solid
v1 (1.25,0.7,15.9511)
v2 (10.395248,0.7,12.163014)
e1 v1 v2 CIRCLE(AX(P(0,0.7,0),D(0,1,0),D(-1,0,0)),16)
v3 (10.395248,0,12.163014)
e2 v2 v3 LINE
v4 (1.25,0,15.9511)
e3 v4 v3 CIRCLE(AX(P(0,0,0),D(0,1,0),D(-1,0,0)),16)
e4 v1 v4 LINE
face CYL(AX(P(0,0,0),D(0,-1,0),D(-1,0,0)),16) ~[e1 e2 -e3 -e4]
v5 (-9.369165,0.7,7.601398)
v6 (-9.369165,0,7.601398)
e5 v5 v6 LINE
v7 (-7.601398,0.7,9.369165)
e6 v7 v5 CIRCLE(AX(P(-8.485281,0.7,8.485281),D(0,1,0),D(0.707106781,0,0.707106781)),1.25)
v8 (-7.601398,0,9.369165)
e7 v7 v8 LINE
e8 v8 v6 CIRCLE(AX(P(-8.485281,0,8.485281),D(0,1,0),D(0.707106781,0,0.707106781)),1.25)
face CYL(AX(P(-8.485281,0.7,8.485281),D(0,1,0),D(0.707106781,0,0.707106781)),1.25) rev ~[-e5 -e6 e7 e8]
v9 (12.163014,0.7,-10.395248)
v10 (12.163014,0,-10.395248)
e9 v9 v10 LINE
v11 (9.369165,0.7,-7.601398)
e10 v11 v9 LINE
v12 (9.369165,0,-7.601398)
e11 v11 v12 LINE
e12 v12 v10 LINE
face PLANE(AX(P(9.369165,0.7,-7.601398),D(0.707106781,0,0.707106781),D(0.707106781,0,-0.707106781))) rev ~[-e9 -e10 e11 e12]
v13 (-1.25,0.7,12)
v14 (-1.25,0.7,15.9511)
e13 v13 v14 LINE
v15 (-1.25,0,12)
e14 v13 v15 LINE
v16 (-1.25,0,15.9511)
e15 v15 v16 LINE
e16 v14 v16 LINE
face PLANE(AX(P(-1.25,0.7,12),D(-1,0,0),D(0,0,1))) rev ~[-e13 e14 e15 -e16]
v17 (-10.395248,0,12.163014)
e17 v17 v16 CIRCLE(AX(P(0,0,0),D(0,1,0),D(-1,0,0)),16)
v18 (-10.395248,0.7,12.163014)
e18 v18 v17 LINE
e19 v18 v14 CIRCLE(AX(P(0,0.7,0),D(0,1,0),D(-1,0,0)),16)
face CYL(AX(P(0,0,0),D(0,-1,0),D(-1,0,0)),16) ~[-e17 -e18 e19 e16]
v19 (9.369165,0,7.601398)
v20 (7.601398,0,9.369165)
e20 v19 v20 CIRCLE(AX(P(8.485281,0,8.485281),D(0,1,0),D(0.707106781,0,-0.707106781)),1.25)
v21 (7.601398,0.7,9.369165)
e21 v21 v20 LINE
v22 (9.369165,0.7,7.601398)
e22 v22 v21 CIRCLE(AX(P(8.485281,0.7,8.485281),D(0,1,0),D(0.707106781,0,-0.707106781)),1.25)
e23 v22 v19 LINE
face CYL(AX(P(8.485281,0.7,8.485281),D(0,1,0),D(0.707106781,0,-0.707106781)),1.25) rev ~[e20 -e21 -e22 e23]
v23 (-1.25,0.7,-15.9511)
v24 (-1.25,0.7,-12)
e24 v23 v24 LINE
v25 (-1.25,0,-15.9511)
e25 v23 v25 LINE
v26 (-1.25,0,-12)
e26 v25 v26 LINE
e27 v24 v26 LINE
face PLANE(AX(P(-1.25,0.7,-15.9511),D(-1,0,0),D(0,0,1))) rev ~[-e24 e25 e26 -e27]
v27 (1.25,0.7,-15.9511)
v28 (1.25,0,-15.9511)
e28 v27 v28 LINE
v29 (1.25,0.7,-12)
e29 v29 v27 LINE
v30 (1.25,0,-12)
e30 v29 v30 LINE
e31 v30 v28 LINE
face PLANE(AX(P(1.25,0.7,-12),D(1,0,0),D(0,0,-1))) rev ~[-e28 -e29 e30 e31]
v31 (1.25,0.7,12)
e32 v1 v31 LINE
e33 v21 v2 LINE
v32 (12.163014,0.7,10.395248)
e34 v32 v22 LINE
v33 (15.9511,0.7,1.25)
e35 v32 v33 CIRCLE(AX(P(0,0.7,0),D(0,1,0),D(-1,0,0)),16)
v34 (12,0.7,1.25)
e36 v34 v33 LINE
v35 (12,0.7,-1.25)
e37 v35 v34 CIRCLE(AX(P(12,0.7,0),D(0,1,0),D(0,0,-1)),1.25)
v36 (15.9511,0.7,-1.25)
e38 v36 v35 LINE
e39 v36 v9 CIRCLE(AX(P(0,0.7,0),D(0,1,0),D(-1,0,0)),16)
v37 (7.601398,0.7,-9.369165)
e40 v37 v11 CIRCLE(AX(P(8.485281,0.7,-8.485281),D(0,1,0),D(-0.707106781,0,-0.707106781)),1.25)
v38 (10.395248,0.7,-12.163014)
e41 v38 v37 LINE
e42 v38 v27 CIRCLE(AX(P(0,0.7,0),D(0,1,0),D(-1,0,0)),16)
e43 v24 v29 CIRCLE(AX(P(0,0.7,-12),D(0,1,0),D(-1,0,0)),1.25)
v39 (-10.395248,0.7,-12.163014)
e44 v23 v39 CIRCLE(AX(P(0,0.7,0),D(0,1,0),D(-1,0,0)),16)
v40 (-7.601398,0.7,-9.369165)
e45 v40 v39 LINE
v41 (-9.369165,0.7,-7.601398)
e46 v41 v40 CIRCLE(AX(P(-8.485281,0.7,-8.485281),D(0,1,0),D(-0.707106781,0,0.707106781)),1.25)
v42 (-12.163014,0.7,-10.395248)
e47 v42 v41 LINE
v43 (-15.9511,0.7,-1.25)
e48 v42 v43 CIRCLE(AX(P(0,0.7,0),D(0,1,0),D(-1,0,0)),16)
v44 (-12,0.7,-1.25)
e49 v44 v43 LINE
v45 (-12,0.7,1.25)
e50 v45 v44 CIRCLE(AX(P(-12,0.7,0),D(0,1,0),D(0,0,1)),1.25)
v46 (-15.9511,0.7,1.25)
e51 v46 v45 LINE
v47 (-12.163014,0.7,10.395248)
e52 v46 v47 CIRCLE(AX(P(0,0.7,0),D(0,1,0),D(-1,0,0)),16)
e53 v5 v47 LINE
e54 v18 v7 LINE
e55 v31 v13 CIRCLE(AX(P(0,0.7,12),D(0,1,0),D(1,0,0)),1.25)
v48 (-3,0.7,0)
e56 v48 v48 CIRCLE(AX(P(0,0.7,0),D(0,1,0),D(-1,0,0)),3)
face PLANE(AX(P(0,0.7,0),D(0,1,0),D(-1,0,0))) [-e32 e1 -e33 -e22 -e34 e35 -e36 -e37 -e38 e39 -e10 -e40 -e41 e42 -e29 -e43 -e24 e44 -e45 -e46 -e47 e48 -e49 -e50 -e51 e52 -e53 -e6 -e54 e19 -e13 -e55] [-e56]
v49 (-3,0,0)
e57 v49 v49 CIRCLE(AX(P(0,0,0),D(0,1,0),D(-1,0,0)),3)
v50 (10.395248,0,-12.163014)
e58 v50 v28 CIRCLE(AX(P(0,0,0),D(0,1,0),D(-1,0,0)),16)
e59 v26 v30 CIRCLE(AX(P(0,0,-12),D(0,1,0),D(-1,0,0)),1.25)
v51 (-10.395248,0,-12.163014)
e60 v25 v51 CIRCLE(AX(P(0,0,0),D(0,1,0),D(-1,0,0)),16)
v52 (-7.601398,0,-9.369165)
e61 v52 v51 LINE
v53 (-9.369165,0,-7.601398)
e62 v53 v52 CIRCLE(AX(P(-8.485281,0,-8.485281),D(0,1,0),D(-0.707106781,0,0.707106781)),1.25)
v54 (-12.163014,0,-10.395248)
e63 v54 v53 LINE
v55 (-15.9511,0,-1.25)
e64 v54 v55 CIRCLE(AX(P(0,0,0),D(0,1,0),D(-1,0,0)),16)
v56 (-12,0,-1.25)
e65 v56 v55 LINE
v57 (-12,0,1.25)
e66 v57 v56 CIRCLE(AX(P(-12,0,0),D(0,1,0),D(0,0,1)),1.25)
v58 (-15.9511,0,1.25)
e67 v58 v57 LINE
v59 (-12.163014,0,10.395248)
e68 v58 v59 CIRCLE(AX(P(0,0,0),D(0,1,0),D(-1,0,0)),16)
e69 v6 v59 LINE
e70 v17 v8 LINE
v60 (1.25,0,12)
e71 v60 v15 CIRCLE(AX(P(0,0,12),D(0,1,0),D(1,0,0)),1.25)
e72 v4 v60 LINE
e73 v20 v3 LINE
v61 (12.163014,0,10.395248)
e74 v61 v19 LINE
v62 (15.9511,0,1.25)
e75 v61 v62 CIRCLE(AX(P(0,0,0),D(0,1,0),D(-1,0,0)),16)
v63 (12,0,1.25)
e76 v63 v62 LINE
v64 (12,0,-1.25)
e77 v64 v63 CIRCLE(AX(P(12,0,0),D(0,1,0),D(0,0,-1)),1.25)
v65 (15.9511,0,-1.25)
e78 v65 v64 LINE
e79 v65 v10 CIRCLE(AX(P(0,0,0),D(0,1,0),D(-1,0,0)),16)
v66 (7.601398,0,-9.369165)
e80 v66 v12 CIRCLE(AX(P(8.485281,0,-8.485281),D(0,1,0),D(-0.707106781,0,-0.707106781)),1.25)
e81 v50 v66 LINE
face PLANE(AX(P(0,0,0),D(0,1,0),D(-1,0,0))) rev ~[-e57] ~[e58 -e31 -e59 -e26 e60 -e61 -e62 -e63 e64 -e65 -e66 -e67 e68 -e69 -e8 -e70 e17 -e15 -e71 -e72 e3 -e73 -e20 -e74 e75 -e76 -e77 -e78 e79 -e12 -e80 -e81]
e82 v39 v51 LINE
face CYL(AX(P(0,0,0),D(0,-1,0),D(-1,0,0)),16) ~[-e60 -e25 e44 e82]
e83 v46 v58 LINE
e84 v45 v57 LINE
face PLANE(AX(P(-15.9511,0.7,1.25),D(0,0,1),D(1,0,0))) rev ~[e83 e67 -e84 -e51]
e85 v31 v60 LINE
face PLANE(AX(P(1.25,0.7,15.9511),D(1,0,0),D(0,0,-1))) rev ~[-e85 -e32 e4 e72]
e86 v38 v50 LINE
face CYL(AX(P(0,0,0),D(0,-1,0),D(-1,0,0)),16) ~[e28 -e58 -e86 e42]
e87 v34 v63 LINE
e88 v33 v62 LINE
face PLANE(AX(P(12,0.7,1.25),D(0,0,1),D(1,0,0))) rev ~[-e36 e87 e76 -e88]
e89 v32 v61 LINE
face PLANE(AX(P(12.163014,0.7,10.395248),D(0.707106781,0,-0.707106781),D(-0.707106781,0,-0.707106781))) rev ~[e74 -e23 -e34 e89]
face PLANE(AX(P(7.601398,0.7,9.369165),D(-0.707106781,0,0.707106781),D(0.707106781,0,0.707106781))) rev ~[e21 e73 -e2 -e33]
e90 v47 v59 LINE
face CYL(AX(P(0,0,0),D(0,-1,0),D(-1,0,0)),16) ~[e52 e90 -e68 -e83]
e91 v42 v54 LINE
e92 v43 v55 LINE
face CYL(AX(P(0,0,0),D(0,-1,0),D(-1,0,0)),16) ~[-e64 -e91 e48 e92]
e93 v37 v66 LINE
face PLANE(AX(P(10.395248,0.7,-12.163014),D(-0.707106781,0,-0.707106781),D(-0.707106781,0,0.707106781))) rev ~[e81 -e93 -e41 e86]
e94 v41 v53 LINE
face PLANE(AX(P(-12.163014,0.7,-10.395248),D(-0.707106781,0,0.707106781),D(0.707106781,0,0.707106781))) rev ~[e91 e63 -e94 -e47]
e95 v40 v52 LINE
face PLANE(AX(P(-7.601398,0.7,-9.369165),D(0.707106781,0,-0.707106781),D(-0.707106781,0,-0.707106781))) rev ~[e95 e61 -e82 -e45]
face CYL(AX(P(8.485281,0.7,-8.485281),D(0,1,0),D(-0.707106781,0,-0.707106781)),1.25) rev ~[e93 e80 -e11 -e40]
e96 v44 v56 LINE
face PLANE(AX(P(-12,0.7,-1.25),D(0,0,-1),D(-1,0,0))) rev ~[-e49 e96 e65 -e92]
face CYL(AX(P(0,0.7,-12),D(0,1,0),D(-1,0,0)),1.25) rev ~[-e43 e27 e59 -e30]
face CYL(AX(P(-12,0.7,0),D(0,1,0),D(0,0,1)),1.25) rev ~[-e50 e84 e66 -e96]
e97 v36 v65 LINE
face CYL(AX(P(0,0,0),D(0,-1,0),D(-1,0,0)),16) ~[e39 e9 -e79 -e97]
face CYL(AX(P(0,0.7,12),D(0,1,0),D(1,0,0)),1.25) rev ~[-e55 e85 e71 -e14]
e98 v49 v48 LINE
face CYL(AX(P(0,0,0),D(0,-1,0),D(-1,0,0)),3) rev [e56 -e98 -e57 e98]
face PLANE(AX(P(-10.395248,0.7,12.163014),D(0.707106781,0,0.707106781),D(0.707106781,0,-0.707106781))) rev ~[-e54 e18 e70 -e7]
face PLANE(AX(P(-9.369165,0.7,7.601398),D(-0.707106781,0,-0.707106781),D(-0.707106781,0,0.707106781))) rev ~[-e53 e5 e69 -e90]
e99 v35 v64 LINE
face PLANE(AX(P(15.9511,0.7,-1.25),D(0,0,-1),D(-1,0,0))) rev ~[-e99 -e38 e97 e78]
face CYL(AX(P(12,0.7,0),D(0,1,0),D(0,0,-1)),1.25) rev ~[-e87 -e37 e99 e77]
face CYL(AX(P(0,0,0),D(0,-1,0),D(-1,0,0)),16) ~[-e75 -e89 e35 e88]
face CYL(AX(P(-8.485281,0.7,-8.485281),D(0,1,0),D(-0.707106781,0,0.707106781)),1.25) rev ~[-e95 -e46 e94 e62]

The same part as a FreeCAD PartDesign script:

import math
import FreeCAD as App
import Part
import Sketcher
Q = App.Units.Quantity

doc = App.newDocument("Part")
params = doc.addObject("Spreadsheet::Sheet", "Params")
for row, (alias, value) in enumerate([
    ("sketch1_diameter", "32 mm"),
    ("sketch1_diameter2", "6 mm"),
    ("pad1_length", "0.7 mm"),
    ("sketch2_radius", "1.25 mm"),
    ("sketch2_radius2", "16 mm"),
    ("pocket1_length", "0.7 mm"),
], start=1):
    params.set(f"A{row}", alias)
    params.set(f"B{row}", "=" + value)
    params.setAlias(f"B{row}", alias)

body = doc.addObject("PartDesign::Body", "Body")

# Sketch on XZ plane
sketch1 = body.newObject("Sketcher::SketchObject", "Sketch")
sketch1.AttachmentSupport = (doc.getObject("XZ_Plane"), [""])
sketch1.MapMode = "FlatFace"
sketch1.addGeometry([
    Part.Circle(App.Vector(0, 0, 0), App.Vector(0, 0, 1), 16),
    Part.Circle(App.Vector(0, 0, 0), App.Vector(0, 0, 1), 3),
], False)
sketch1.addConstraint([
    Sketcher.Constraint("Coincident", 0, 3, -1, 1),
    Sketcher.Constraint("Coincident", 1, 3, -1, 1),
    Sketcher.Constraint("Diameter", 0, Q("32 mm")),
    Sketcher.Constraint("Diameter", 1, Q("6 mm")),
])
sketch1.setExpression("Constraints[2]", "Params.sketch1_diameter")
sketch1.setExpression("Constraints[3]", "Params.sketch1_diameter2")
pad1 = body.newObject("PartDesign::Pad", "Pad")
pad1.Profile = sketch1
pad1.setExpression("Length", "Params.pad1_length")
pad1.Reversed = True

# Sketch on XZ plane
sketch2 = body.newObject("Sketcher::SketchObject", "Sketch001")
sketch2.AttachmentSupport = (doc.getObject("XZ_Plane"), [""])
sketch2.MapMode = "FlatFace"
sketch2.AttachmentOffset = App.Placement(App.Vector(0, 0, -0.7), App.Rotation())
sketch2.addGeometry([
    Part.LineSegment(App.Vector(-12, -1.2, 0), App.Vector(-16, -1.2, 0)),
    Part.ArcOfCircle(Part.Circle(App.Vector(0, 0, 0), App.Vector(0, 0, 1), 16), math.radians(175.52), math.radians(184.48)),
    Part.LineSegment(App.Vector(-16, 1.2, 0), App.Vector(-12, 1.2, 0)),
    Part.ArcOfCircle(Part.Circle(App.Vector(-12, 0, 0), App.Vector(0, 0, 1), 1.2), math.radians(-90), math.radians(90)),
], False)
sketch2.addConstraint([
    Sketcher.Constraint("Coincident", 0, 2, 1, 2),
    Sketcher.Constraint("Coincident", 1, 1, 2, 1),
    Sketcher.Constraint("Tangent", 2, 2, 3, 2),
    Sketcher.Constraint("Tangent", 3, 1, 0, 1),
    Sketcher.Constraint("Horizontal", 0),
    Sketcher.Constraint("Horizontal", 2),
    Sketcher.Constraint("Coincident", 1, 3, -1, 1),
    Sketcher.Constraint("PointOnObject", 3, 3, -1),
    Sketcher.Constraint("Radius", 3, Q("1.25 mm")),
    Sketcher.Constraint("DistanceX", 3, 3, -1, 1, Q("12 mm")),
    Sketcher.Constraint("Radius", 1, Q("16 mm")),
])
sketch2.setExpression("Constraints[8]", "Params.sketch2_radius")
sketch2.setExpression("Constraints[10]", "Params.sketch2_radius2")
pocket1 = body.newObject("PartDesign::Pocket", "Pocket")
pocket1.Profile = sketch2
pocket1.setExpression("Length", "Params.pocket1_length")
pocket1.Reversed = True
doc.recompute()

polarpattern = body.newObject("PartDesign::PolarPattern", "PolarPattern")
polarpattern.Originals = [pocket1]
polarpattern.Axis = (doc.getObject("Y_Axis"), [""])
polarpattern.Angle = 360
polarpattern.Occurrences = 8
body.Tip = polarpattern

doc.recompute()
